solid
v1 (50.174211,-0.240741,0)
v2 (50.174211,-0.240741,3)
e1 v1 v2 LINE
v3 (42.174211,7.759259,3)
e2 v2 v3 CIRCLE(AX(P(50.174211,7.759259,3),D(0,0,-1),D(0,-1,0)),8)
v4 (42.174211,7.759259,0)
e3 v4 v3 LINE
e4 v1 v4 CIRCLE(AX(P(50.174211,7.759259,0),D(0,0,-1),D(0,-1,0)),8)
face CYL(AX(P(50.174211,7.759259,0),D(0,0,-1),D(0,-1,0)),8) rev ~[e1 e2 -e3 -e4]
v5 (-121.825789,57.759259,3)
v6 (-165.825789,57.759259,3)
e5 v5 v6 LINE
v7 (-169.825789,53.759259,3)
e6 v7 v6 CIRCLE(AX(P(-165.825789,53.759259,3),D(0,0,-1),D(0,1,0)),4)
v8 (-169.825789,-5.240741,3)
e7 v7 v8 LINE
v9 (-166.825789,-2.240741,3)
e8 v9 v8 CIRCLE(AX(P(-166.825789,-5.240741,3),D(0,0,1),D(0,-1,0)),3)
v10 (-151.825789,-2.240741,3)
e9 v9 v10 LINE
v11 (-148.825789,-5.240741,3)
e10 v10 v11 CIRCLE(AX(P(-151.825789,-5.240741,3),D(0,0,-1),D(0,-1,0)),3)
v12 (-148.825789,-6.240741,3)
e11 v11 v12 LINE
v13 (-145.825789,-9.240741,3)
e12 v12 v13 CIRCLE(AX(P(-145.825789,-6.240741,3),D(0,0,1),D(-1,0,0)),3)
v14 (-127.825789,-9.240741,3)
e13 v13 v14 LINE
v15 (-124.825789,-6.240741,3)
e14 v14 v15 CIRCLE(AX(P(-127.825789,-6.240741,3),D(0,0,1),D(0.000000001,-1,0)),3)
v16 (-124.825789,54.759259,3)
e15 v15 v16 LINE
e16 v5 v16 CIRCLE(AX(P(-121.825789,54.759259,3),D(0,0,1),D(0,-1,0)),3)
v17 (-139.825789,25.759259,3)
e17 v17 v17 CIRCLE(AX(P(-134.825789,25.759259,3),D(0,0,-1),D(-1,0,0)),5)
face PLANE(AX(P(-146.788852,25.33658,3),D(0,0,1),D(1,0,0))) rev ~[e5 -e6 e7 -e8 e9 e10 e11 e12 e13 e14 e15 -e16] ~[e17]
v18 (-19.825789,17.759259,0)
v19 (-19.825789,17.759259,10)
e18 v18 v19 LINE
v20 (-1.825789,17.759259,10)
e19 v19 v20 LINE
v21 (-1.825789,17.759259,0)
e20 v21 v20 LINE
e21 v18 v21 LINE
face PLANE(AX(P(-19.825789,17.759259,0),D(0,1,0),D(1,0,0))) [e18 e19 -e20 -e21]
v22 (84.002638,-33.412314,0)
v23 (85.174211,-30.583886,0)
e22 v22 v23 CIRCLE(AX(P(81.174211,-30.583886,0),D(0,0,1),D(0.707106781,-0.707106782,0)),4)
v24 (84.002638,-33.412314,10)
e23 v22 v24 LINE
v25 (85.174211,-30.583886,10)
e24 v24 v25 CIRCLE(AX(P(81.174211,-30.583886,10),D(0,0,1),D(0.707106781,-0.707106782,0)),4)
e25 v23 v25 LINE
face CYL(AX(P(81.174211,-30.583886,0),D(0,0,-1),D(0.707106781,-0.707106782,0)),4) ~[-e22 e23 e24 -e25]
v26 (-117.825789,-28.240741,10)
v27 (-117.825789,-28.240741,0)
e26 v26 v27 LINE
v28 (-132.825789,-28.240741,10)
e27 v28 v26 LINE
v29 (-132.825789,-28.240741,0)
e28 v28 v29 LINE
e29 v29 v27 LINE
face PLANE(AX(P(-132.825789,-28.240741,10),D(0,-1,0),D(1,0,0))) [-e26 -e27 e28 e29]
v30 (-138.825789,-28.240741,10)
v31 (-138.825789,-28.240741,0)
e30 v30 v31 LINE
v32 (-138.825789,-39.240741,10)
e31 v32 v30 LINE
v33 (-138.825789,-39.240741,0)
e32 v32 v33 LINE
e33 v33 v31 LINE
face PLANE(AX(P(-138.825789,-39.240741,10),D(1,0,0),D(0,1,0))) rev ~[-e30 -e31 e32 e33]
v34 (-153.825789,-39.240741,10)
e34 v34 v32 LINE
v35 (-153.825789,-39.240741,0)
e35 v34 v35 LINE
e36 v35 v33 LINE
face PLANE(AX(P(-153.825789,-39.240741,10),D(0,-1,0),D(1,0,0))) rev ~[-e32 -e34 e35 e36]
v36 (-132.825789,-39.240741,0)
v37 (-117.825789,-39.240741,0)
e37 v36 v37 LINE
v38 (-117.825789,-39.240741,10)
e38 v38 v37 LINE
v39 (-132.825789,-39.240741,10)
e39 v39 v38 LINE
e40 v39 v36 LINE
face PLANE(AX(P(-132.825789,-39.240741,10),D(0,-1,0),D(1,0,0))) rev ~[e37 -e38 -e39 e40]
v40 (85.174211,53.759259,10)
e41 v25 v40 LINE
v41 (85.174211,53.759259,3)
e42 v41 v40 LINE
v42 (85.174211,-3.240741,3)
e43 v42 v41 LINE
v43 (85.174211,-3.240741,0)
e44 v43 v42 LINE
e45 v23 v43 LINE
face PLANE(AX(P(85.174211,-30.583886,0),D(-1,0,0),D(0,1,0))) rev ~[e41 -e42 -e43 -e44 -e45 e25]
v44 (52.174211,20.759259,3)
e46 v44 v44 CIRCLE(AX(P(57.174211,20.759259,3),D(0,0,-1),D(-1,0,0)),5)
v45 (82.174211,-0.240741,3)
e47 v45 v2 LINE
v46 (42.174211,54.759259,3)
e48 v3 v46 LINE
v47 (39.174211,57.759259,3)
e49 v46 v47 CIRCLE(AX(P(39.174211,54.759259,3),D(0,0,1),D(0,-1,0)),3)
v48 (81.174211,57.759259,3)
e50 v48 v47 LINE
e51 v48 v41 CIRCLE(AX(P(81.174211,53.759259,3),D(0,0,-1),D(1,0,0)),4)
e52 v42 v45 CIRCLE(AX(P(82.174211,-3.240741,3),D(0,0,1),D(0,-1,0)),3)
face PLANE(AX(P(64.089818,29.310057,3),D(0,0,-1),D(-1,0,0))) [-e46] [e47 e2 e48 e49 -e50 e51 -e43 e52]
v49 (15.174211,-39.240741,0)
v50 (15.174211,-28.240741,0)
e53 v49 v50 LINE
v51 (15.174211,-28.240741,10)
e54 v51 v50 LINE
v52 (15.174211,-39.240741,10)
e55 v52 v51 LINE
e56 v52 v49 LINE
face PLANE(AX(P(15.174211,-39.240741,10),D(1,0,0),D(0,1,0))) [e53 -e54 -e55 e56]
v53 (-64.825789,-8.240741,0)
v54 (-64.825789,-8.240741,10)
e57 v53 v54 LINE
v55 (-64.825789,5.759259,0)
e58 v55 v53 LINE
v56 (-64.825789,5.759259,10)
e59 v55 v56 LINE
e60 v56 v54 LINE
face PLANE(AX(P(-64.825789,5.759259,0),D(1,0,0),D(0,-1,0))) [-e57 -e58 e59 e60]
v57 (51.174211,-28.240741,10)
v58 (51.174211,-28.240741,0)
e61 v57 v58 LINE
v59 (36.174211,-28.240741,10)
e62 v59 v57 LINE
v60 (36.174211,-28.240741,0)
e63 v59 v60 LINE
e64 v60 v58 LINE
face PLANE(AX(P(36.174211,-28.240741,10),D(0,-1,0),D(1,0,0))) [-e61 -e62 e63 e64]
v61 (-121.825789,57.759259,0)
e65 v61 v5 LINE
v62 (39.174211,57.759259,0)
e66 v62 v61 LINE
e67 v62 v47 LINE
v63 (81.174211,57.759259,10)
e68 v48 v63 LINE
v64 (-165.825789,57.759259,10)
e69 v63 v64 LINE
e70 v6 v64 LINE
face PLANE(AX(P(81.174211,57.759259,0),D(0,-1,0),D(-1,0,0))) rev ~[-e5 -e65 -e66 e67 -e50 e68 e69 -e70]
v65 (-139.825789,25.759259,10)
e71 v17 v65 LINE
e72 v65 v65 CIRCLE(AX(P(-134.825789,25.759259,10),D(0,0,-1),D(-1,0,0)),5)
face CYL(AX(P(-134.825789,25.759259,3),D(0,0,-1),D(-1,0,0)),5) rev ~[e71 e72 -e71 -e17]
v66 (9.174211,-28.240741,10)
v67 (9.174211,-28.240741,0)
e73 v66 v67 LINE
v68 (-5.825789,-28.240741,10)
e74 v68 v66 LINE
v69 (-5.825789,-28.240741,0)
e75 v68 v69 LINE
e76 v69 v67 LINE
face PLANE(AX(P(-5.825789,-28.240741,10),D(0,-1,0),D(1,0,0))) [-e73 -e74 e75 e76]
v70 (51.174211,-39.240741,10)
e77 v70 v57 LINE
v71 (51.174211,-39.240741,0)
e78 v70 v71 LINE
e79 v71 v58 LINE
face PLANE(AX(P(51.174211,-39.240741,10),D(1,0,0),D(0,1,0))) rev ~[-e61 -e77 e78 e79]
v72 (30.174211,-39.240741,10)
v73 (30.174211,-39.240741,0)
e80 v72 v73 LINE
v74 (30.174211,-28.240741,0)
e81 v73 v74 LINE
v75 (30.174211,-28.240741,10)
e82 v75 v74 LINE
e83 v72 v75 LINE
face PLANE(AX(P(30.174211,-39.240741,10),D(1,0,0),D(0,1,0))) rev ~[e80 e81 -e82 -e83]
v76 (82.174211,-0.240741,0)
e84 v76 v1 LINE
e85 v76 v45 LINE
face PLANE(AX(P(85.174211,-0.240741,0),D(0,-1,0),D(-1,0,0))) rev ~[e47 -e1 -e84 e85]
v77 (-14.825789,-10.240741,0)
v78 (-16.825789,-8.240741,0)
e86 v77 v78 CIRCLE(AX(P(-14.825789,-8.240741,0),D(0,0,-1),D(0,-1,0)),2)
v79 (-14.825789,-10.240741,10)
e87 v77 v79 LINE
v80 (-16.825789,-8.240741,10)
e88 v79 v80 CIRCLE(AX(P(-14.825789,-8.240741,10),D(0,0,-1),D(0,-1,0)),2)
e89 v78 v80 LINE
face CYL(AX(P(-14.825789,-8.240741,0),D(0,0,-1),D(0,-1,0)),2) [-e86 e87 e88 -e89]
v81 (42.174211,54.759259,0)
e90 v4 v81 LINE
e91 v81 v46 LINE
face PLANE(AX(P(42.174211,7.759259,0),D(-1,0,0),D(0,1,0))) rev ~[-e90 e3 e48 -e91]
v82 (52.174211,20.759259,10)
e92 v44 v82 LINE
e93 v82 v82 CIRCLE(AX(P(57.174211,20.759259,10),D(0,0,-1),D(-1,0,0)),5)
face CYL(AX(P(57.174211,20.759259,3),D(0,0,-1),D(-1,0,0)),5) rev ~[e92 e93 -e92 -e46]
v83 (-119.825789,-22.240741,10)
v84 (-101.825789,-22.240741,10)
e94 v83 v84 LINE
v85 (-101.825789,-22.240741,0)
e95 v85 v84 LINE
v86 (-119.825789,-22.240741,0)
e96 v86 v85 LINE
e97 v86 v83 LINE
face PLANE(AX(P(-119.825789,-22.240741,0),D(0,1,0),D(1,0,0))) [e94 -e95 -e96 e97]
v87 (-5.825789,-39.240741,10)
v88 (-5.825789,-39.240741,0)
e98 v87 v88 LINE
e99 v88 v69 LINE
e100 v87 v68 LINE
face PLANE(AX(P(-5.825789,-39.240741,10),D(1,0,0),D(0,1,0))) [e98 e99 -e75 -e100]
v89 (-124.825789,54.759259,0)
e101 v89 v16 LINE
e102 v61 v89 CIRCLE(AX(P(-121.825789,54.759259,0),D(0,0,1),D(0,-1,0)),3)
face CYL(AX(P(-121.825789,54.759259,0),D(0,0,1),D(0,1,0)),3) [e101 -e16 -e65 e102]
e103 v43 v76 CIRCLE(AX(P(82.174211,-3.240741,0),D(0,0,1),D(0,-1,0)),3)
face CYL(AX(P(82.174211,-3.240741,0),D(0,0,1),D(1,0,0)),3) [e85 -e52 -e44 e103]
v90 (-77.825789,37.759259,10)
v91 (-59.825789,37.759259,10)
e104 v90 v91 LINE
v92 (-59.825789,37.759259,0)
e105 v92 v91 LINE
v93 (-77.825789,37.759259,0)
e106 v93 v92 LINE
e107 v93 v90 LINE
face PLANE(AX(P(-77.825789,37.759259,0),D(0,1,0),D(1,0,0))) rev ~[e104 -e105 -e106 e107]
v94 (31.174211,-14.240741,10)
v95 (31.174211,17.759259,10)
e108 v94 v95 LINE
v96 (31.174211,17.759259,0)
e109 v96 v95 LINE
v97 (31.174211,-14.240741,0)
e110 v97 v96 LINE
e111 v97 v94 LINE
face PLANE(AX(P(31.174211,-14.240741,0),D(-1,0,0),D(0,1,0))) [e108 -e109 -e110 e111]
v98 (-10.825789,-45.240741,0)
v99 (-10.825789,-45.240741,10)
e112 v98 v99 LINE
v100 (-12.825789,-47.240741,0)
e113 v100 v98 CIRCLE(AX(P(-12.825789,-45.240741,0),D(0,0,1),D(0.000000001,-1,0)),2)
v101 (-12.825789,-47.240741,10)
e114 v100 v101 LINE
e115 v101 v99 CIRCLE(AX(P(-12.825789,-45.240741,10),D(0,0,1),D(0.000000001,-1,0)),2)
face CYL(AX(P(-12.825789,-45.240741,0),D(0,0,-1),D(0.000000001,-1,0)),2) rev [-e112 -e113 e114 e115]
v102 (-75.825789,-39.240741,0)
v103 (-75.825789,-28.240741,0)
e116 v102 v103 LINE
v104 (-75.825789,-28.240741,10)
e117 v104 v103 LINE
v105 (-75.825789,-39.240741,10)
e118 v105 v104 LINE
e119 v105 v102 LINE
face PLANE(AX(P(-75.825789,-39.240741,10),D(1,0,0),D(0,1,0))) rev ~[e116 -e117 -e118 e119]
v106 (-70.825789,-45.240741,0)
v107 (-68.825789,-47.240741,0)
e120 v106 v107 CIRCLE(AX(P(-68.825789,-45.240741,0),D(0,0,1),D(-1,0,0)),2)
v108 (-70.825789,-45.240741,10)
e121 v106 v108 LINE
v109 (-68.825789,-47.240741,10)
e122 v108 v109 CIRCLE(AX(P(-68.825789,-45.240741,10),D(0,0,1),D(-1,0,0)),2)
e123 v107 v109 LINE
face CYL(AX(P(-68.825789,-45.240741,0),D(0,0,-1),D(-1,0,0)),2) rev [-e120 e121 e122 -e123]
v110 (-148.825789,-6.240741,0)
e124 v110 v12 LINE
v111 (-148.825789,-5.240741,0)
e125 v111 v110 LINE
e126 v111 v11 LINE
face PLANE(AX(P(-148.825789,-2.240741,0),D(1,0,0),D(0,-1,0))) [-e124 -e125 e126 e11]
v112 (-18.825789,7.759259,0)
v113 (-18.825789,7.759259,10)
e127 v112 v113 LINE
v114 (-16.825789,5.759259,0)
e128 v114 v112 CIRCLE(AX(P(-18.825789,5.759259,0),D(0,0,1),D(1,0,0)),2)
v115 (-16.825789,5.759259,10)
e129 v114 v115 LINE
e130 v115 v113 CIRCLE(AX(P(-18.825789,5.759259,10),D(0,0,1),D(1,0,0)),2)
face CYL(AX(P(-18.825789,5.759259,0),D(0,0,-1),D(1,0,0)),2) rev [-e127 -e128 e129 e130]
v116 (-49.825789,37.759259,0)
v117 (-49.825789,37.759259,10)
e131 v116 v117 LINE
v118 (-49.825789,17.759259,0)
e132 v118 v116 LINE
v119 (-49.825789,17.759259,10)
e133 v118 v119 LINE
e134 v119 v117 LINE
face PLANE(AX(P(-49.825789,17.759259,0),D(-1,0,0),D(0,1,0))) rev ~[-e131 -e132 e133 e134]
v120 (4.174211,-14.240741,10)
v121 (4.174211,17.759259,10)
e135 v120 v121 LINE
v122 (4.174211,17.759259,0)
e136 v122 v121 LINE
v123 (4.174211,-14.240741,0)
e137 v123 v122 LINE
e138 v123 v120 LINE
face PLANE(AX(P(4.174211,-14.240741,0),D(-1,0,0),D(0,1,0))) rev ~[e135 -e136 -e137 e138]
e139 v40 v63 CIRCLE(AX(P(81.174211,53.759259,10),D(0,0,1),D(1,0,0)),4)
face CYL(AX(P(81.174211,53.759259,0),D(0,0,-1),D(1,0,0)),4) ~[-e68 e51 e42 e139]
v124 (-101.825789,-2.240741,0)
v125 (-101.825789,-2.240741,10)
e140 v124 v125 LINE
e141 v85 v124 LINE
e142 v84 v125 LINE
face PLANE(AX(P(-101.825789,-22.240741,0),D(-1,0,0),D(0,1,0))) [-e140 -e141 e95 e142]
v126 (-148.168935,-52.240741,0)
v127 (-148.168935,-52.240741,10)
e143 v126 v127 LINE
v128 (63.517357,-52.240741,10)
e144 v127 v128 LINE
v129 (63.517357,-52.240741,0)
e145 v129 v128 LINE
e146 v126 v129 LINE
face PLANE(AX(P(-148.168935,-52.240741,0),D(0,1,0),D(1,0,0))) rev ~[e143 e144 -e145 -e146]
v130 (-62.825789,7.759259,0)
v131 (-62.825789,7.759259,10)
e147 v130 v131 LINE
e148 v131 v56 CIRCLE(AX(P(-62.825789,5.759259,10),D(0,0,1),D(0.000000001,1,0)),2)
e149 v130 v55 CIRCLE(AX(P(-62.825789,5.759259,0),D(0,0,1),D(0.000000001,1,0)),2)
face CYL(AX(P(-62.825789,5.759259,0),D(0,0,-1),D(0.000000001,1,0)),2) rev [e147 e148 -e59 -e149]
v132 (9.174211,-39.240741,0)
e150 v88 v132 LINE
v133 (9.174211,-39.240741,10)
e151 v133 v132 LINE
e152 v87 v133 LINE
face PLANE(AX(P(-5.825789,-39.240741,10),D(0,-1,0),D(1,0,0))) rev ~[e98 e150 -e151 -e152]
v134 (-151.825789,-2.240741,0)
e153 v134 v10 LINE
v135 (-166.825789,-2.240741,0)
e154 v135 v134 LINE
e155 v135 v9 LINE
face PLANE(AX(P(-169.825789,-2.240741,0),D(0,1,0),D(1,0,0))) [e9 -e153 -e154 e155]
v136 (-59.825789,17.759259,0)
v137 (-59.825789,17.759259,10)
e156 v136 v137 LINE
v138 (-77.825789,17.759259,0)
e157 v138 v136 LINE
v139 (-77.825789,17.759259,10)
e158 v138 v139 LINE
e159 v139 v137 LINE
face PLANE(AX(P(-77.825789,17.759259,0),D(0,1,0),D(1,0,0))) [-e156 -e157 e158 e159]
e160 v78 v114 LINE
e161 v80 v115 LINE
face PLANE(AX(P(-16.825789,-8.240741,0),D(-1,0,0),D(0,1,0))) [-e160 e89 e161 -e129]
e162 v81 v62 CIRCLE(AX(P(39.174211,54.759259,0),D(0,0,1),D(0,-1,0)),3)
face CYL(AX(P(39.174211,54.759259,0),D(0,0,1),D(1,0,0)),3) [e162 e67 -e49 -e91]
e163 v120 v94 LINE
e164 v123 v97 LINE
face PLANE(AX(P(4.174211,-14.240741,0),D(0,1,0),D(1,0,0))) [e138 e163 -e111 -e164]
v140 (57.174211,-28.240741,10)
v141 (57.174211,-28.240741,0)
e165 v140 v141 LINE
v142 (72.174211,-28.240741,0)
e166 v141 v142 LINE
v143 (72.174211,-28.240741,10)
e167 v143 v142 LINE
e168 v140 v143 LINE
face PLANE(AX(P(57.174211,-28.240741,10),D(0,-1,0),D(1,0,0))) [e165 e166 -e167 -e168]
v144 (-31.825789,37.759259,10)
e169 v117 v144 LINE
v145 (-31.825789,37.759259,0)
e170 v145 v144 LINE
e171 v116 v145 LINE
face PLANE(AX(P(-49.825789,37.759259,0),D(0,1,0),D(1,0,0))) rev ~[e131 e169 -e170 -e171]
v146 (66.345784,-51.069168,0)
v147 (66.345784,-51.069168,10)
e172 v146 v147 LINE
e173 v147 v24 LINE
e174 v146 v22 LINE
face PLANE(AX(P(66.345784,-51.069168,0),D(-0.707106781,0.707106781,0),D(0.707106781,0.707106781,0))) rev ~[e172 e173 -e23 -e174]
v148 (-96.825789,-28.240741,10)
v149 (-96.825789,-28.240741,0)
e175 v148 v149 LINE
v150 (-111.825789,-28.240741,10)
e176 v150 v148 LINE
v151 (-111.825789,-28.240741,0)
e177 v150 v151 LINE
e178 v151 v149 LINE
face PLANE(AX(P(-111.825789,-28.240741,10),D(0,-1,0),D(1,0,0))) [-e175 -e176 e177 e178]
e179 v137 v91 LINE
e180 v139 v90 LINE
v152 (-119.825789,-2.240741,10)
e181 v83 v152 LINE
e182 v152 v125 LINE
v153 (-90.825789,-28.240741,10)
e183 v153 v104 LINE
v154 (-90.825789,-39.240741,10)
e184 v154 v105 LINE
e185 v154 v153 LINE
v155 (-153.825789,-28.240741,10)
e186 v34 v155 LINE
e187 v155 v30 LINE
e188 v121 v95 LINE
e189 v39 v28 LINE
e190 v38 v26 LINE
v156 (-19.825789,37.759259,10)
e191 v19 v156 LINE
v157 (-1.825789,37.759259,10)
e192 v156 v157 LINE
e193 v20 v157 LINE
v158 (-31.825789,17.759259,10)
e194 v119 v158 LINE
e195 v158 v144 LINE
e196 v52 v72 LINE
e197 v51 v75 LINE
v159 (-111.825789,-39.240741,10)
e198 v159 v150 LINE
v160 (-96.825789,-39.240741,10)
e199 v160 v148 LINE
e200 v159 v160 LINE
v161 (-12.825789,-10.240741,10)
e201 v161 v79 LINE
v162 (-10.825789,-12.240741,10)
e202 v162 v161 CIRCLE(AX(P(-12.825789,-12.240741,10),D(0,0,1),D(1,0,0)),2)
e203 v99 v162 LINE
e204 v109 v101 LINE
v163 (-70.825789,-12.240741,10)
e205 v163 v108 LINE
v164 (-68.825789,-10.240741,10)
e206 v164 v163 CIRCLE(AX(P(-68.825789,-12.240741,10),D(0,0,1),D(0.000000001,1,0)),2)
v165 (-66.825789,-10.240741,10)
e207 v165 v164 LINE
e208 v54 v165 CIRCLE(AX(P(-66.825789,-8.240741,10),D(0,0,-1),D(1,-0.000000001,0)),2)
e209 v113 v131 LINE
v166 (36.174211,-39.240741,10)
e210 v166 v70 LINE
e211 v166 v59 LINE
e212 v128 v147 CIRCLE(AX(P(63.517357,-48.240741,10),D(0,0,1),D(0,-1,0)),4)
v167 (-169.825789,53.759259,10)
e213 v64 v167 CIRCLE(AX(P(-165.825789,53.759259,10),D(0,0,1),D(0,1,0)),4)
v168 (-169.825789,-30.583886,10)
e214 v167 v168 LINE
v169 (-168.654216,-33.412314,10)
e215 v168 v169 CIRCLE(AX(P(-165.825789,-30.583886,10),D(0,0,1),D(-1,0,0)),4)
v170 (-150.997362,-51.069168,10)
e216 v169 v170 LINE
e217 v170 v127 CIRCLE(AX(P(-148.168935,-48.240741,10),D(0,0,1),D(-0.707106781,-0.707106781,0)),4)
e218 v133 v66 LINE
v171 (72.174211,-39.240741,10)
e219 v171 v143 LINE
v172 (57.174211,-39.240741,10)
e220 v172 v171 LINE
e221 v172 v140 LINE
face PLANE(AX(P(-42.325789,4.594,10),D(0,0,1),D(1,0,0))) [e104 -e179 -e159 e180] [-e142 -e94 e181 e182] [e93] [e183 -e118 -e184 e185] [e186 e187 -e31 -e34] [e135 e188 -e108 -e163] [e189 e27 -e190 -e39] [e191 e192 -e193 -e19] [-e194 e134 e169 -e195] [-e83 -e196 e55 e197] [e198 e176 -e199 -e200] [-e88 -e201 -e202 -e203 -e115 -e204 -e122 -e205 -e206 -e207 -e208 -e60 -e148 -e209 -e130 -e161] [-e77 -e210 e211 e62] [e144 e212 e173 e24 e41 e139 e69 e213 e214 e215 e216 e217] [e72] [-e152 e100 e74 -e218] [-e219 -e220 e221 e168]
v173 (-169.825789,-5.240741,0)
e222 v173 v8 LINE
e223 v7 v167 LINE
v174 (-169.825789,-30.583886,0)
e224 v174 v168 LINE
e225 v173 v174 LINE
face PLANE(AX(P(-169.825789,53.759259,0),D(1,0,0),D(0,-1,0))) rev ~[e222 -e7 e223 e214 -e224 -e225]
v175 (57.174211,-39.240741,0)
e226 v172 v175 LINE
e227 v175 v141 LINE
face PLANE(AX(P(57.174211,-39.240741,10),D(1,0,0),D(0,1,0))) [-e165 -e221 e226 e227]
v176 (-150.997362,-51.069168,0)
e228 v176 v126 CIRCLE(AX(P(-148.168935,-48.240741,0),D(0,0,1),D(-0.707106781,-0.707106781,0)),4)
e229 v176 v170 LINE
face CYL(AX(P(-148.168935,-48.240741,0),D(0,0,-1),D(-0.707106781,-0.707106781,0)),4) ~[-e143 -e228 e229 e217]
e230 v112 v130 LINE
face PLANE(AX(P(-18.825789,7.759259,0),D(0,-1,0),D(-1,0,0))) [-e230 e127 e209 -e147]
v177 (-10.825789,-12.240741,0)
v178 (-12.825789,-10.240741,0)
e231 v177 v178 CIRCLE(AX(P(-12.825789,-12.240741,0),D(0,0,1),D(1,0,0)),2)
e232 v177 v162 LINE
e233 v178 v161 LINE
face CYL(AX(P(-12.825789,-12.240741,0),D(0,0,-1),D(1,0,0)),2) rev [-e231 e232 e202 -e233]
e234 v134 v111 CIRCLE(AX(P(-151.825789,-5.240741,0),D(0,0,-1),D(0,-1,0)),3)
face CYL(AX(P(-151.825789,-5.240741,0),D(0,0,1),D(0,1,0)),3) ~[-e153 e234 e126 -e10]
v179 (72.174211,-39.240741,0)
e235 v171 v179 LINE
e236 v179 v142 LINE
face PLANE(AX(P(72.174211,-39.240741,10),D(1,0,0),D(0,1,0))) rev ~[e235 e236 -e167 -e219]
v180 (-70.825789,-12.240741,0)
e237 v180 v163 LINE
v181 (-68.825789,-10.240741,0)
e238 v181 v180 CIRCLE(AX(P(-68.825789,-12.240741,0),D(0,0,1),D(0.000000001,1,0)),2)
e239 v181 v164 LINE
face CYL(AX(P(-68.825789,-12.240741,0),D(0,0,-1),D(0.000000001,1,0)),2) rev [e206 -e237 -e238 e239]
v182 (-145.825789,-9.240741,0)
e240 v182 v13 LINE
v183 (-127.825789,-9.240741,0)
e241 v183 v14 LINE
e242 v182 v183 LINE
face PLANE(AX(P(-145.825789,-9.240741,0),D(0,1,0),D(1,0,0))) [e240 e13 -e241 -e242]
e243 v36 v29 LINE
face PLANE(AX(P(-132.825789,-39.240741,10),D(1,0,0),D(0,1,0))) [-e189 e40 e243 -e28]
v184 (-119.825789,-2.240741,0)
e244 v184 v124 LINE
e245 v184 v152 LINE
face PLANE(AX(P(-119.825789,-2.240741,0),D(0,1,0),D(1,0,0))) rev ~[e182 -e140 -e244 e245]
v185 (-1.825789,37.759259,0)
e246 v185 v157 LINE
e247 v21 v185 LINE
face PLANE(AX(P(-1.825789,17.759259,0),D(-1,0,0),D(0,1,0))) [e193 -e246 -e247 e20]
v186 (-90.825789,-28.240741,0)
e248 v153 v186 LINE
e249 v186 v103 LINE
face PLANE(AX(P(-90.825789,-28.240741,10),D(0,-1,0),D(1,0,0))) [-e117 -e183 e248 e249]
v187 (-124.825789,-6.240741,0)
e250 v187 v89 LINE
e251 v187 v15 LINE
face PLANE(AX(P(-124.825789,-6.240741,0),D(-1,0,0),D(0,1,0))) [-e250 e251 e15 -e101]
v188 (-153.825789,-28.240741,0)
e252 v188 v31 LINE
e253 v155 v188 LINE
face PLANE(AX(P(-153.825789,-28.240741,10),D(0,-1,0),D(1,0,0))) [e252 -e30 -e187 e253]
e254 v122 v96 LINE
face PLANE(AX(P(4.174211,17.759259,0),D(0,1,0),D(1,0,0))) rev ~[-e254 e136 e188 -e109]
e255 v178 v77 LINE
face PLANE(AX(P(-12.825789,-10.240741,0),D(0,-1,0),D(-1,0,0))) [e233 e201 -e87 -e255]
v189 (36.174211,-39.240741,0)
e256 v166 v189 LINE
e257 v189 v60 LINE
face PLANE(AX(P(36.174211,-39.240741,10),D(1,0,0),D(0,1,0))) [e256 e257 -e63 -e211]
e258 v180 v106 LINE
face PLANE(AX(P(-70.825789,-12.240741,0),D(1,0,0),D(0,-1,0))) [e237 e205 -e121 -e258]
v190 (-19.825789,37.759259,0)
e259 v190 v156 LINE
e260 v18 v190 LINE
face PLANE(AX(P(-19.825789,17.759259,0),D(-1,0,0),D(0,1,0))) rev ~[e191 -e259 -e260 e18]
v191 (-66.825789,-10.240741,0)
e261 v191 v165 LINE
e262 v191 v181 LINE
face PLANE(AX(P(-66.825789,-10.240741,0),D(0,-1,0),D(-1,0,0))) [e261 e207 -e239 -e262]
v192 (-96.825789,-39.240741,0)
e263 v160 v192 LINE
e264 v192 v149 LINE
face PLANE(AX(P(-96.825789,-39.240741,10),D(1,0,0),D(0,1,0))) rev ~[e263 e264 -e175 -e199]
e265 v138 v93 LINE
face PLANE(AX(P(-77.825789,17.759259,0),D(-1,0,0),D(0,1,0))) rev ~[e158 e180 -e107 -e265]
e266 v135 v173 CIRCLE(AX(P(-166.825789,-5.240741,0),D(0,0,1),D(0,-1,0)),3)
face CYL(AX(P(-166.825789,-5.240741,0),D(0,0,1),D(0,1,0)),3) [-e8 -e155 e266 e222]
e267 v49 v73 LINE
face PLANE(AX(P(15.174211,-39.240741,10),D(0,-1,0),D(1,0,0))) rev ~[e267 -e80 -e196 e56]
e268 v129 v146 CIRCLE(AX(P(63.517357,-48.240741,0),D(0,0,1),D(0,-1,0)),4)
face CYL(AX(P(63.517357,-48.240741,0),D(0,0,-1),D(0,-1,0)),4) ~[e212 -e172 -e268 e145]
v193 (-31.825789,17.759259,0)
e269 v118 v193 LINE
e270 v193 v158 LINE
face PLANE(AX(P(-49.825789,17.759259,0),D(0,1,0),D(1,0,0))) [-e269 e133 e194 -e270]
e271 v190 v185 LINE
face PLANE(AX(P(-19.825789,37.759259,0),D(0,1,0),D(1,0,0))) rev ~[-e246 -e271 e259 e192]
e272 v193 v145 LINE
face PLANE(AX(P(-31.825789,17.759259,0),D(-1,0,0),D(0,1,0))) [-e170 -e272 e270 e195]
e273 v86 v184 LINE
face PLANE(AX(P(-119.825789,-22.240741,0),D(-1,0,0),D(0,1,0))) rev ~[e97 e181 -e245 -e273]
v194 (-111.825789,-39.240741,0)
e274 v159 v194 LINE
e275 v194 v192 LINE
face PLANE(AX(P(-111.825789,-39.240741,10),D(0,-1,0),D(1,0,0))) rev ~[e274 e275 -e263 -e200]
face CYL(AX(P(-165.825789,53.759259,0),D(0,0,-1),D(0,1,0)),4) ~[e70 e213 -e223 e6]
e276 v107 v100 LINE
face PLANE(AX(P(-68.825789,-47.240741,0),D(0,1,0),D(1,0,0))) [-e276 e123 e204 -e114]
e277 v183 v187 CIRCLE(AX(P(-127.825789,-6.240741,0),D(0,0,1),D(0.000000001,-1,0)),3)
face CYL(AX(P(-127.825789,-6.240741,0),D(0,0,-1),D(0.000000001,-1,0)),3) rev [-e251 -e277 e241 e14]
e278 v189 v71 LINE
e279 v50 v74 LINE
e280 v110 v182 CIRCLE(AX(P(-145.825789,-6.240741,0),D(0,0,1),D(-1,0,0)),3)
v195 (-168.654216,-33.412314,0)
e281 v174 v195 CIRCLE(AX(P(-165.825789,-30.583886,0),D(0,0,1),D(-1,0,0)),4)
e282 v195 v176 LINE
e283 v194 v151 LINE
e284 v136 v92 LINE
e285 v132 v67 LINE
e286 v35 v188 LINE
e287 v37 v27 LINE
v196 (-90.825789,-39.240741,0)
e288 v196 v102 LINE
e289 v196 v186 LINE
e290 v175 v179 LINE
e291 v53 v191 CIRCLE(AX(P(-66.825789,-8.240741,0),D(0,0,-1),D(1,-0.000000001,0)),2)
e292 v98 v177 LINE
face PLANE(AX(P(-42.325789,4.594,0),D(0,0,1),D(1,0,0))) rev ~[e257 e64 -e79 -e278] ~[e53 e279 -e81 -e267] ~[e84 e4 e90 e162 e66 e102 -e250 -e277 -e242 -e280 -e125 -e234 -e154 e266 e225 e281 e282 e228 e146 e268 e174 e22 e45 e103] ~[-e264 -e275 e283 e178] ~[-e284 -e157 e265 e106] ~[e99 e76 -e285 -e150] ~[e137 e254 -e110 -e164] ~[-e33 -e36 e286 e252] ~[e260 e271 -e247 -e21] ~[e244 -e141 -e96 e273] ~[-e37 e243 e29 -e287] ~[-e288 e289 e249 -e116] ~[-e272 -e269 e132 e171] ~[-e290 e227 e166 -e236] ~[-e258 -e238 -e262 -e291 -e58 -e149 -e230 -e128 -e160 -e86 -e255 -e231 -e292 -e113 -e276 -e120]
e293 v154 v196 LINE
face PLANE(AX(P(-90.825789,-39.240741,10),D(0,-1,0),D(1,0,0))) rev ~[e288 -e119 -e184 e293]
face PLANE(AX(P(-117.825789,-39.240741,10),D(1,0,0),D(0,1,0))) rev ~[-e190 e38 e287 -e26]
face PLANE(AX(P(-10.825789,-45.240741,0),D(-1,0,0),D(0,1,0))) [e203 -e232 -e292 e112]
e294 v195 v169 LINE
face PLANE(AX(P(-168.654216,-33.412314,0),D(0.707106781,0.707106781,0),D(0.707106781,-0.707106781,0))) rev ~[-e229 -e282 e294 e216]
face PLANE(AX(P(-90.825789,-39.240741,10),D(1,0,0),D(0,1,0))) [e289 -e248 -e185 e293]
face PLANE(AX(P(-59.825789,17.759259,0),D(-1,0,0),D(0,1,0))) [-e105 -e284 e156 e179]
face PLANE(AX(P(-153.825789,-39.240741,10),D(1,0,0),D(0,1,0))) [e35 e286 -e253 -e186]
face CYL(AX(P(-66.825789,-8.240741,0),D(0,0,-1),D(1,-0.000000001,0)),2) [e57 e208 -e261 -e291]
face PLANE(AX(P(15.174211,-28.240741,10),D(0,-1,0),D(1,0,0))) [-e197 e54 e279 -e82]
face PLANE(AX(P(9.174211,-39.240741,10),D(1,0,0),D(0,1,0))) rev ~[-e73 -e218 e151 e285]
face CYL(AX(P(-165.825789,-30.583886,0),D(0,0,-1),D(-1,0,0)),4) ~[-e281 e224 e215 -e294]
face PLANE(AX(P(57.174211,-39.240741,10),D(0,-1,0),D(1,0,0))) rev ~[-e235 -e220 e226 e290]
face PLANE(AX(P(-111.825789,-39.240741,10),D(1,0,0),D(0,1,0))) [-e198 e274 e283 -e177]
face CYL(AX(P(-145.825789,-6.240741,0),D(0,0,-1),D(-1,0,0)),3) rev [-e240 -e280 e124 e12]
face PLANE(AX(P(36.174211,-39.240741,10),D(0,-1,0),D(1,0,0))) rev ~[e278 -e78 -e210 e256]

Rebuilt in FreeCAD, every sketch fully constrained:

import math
import FreeCAD as App
import Part
import Sketcher


def edges_at(feature, points):
    """Names of the edges that pass closest to the given points."""
    edges = feature.Shape.Edges
    near = lambda p: min(range(len(edges)), key=lambda i: edges[i].distToShape(Part.Vertex(*p))[0])
    return sorted({f"Edge{near(p) + 1}" for p in points})


def add_polygon(sketch, points):
    """Adds a closed chain of lines whose ends are joined by coincident constraints."""
    first, n = sketch.GeometryCount, len(points)
    for a, b in zip(points, points[1:] + points[:1]):
        sketch.addGeometry(Part.LineSegment(App.Vector(*a, 0), App.Vector(*b, 0)), False)
    for i in range(n):
        sketch.addConstraint(Sketcher.Constraint("Coincident", first + i, 2, first + (i + 1) % n, 1))

doc = App.newDocument("Part")
body = doc.addObject("PartDesign::Body", "Body")

# Sketch on XY plane
sketch1 = body.newObject("Sketcher::SketchObject", "Sketch")
sketch1.AttachmentSupport = (doc.getObject("XY_Plane"), [""])
sketch1.MapMode = "FlatFace"
sketch1.addGeometry(Part.LineSegment(App.Vector(-168.7, -33.4, 0), App.Vector(-151, -51.1, 0)), False)  # 0
sketch1.addGeometry(Part.ArcOfCircle(Part.Circle(App.Vector(-148.2, -48.2, 0), App.Vector(0, 0, 1), 4), math.radians(-135), math.radians(-90)), False)  # 1
sketch1.addGeometry(Part.LineSegment(App.Vector(-148.2, -52.2, 0), App.Vector(63.5, -52.2, 0)), False)  # 2
sketch1.addGeometry(Part.ArcOfCircle(Part.Circle(App.Vector(63.5, -48.2, 0), App.Vector(0, 0, 1), 4), math.radians(-90), math.radians(-45)), False)  # 3
sketch1.addGeometry(Part.LineSegment(App.Vector(66.3, -51.1, 0), App.Vector(84, -33.4, 0)), False)  # 4
sketch1.addGeometry(Part.ArcOfCircle(Part.Circle(App.Vector(81.2, -30.6, 0), App.Vector(0, 0, 1), 4), math.radians(-45), math.radians(0)), False)  # 5
sketch1.addGeometry(Part.LineSegment(App.Vector(85.2, -30.6, 0), App.Vector(85.2, 53.8, 0)), False)  # 6
sketch1.addGeometry(Part.ArcOfCircle(Part.Circle(App.Vector(81.2, 53.8, 0), App.Vector(0, 0, 1), 4), math.radians(0), math.radians(90)), False)  # 7
sketch1.addGeometry(Part.LineSegment(App.Vector(81.2, 57.8, 0), App.Vector(-165.8, 57.8, 0)), False)  # 8
sketch1.addGeometry(Part.ArcOfCircle(Part.Circle(App.Vector(-165.8, 53.8, 0), App.Vector(0, 0, 1), 4), math.radians(90), math.radians(180)), False)  # 9
sketch1.addGeometry(Part.LineSegment(App.Vector(-169.8, 53.8, 0), App.Vector(-169.8, -30.6, 0)), False)  # 10
sketch1.addGeometry(Part.ArcOfCircle(Part.Circle(App.Vector(-165.8, -30.6, 0), App.Vector(0, 0, 1), 4), math.radians(180), math.radians(225)), False)  # 11
add_polygon(sketch1, [(-101.8, -22.2), (-119.8, -22.2), (-119.8, -2.2), (-101.8, -2.2)])  # lines 12-15
add_polygon(sketch1, [(31.2, -14.2), (4.2, -14.2), (4.2, 17.8), (31.2, 17.8)])  # lines 16-19
add_polygon(sketch1, [(-59.8, 17.8), (-77.8, 17.8), (-77.8, 37.8), (-59.8, 37.8)])  # lines 20-23
add_polygon(sketch1, [(-31.8, 17.8), (-49.8, 17.8), (-49.8, 37.8), (-31.8, 37.8)])  # lines 24-27
add_polygon(sketch1, [(-1.8, 17.8), (-19.8, 17.8), (-19.8, 37.8), (-1.8, 37.8)])  # lines 28-31
sketch1.addConstraint(Sketcher.Constraint("Tangent", 0, 2, 1, 1))
sketch1.addConstraint(Sketcher.Constraint("Tangent", 1, 2, 2, 1))
sketch1.addConstraint(Sketcher.Constraint("Tangent", 2, 2, 3, 1))
sketch1.addConstraint(Sketcher.Constraint("Tangent", 3, 2, 4, 1))
sketch1.addConstraint(Sketcher.Constraint("Tangent", 4, 2, 5, 1))
sketch1.addConstraint(Sketcher.Constraint("Tangent", 5, 2, 6, 1))
sketch1.addConstraint(Sketcher.Constraint("Tangent", 6, 2, 7, 1))
sketch1.addConstraint(Sketcher.Constraint("Tangent", 7, 2, 8, 1))
sketch1.addConstraint(Sketcher.Constraint("Tangent", 8, 2, 9, 1))
sketch1.addConstraint(Sketcher.Constraint("Tangent", 9, 2, 10, 1))
sketch1.addConstraint(Sketcher.Constraint("Tangent", 10, 2, 11, 1))
sketch1.addConstraint(Sketcher.Constraint("Tangent", 11, 2, 0, 1))
sketch1.addConstraint(Sketcher.Constraint("Horizontal", 2))
sketch1.addConstraint(Sketcher.Constraint("Vertical", 6))
sketch1.addConstraint(Sketcher.Constraint("Horizontal", 8))
sketch1.addConstraint(Sketcher.Constraint("Vertical", 10))
sketch1.addConstraint(Sketcher.Constraint("Horizontal", 12))
sketch1.addConstraint(Sketcher.Constraint("Vertical", 13))
sketch1.addConstraint(Sketcher.Constraint("Horizontal", 14))
sketch1.addConstraint(Sketcher.Constraint("Vertical", 15))
sketch1.addConstraint(Sketcher.Constraint("Horizontal", 16))
sketch1.addConstraint(Sketcher.Constraint("Vertical", 17))
sketch1.addConstraint(Sketcher.Constraint("Horizontal", 18))
sketch1.addConstraint(Sketcher.Constraint("Vertical", 19))
sketch1.addConstraint(Sketcher.Constraint("Horizontal", 20))
sketch1.addConstraint(Sketcher.Constraint("Vertical", 21))
sketch1.addConstraint(Sketcher.Constraint("Horizontal", 22))
sketch1.addConstraint(Sketcher.Constraint("Vertical", 23))
sketch1.addConstraint(Sketcher.Constraint("Horizontal", 24))
sketch1.addConstraint(Sketcher.Constraint("Vertical", 25))
sketch1.addConstraint(Sketcher.Constraint("Horizontal", 26))
sketch1.addConstraint(Sketcher.Constraint("Vertical", 27))
sketch1.addConstraint(Sketcher.Constraint("Horizontal", 28))
sketch1.addConstraint(Sketcher.Constraint("Vertical", 29))
sketch1.addConstraint(Sketcher.Constraint("Horizontal", 30))
sketch1.addConstraint(Sketcher.Constraint("Vertical", 31))
sketch1.addConstraint(Sketcher.Constraint("Equal", 1, 3))
sketch1.addConstraint(Sketcher.Constraint("Equal", 3, 5))
sketch1.addConstraint(Sketcher.Constraint("Equal", 5, 7))
sketch1.addConstraint(Sketcher.Constraint("Equal", 7, 9))
sketch1.addConstraint(Sketcher.Constraint("Equal", 9, 11))
sketch1.addConstraint(Sketcher.Constraint("Perpendicular", 0, 4))
sketch1.addConstraint(Sketcher.Constraint("Horizontal", 5, 3, 11, 3))
sketch1.addConstraint(Sketcher.Constraint("Horizontal", 0, 2, 3, 2))
sketch1.addConstraint(Sketcher.Constraint("Horizontal", 18, 2, 20, 2))
sketch1.addConstraint(Sketcher.Constraint("Horizontal", 23, 2, 24, 2))
sketch1.addConstraint(Sketcher.Constraint("Horizontal", 22, 2, 25, 2))
sketch1.addConstraint(Sketcher.Constraint("Horizontal", 27, 2, 28, 2))
sketch1.addConstraint(Sketcher.Constraint("Horizontal", 26, 2, 29, 2))
sketch1.addConstraint(Sketcher.Constraint("Equal", 14, 20))
sketch1.addConstraint(Sketcher.Constraint("Equal", 22, 24))
sketch1.addConstraint(Sketcher.Constraint("Equal", 26, 28))
sketch1.addConstraint(Sketcher.Constraint("Equal", 15, 21))
sketch1.addConstraint(Sketcher.Constraint("Radius", 1, 4.0))
sketch1.addConstraint(Sketcher.Constraint("DistanceX", 8, 2, 8, 1, 247.0))
sketch1.addConstraint(Sketcher.Constraint("DistanceX", 12, 2, 12, 1, 18.0))
sketch1.addConstraint(Sketcher.Constraint("DistanceX", 16, 2, 16, 1, 27.0))
sketch1.addConstraint(Sketcher.Constraint("DistanceY", 13, 1, 13, 2, 20.0))
sketch1.addConstraint(Sketcher.Constraint("DistanceY", 17, 1, 17, 2, 32.0))
sketch1.addConstraint(Sketcher.Constraint("DistanceY", 3, 3, 7, 3, 102.0))
sketch1.addConstraint(Sketcher.Constraint("DistanceY", 1, 3, 12, 2, 26.0))
sketch1.addConstraint(Sketcher.Constraint("DistanceX", 11, 3, 12, 2, 46.0))
sketch1.addConstraint(Sketcher.Constraint("DistanceY", 3, 3, 16, 2, 34.0))
sketch1.addConstraint(Sketcher.Constraint("DistanceX", 16, 2, 5, 3, 77.0))
sketch1.addConstraint(Sketcher.Constraint("DistanceX", 14, 2, 20, 2, 24.0))
sketch1.addConstraint(Sketcher.Constraint("DistanceX", 23, 2, 24, 2, 10.0))
sketch1.addConstraint(Sketcher.Constraint("DistanceX", 27, 2, 28, 2, 12.0))
sketch1.addConstraint(Sketcher.Constraint("DistanceX", 2, 1, 2, 2, 211.686292))
sketch1.addConstraint(Sketcher.Constraint("DistanceY", 1, 3, -1, 1, 48.240741))
sketch1.addConstraint(Sketcher.Constraint("DistanceX", -1, 1, 5, 3, 81.174211))
pad1 = body.newObject("PartDesign::Pad", "Pad")
pad1.Profile = sketch1
pad1.Length = 10

# Sketch on XY plane
sketch2 = body.newObject("Sketcher::SketchObject", "Sketch001")
sketch2.AttachmentSupport = (doc.getObject("XY_Plane"), [""])
sketch2.MapMode = "FlatFace"
sketch2.AttachmentOffset = App.Placement(App.Vector(0, 0, 10), App.Rotation())
add_polygon(sketch2, [(-154, -28), (-154, -39), (-139, -39), (-139, -28)])  # lines 0-3
add_polygon(sketch2, [(-133, -28), (-133, -39), (-118, -39), (-118, -28)])  # lines 4-7
add_polygon(sketch2, [(-112, -28), (-112, -39), (-97, -39), (-97, -28)])  # lines 8-11
add_polygon(sketch2, [(-91, -28), (-91, -39), (-76, -39), (-76, -28)])  # lines 12-15
add_polygon(sketch2, [(-6, -28), (-6, -39), (9, -39), (9, -28)])  # lines 16-19
add_polygon(sketch2, [(15, -28), (15, -39), (30, -39), (30, -28)])  # lines 20-23
add_polygon(sketch2, [(36, -28), (36, -39), (51, -39), (51, -28)])  # lines 24-27
add_polygon(sketch2, [(57, -28), (57, -39), (72, -39), (72, -28)])  # lines 28-31
sketch2.addConstraint(Sketcher.Constraint("Vertical", 0))
sketch2.addConstraint(Sketcher.Constraint("Horizontal", 1))
sketch2.addConstraint(Sketcher.Constraint("Vertical", 2))
sketch2.addConstraint(Sketcher.Constraint("Horizontal", 3))
sketch2.addConstraint(Sketcher.Constraint("Vertical", 4))
sketch2.addConstraint(Sketcher.Constraint("Horizontal", 5))
sketch2.addConstraint(Sketcher.Constraint("Vertical", 6))
sketch2.addConstraint(Sketcher.Constraint("Horizontal", 7))
sketch2.addConstraint(Sketcher.Constraint("Vertical", 8))
sketch2.addConstraint(Sketcher.Constraint("Horizontal", 9))
sketch2.addConstraint(Sketcher.Constraint("Vertical", 10))
sketch2.addConstraint(Sketcher.Constraint("Horizontal", 11))
sketch2.addConstraint(Sketcher.Constraint("Vertical", 12))
sketch2.addConstraint(Sketcher.Constraint("Horizontal", 13))
sketch2.addConstraint(Sketcher.Constraint("Vertical", 14))
sketch2.addConstraint(Sketcher.Constraint("Horizontal", 15))
sketch2.addConstraint(Sketcher.Constraint("Vertical", 16))
sketch2.addConstraint(Sketcher.Constraint("Horizontal", 17))
sketch2.addConstraint(Sketcher.Constraint("Vertical", 18))
sketch2.addConstraint(Sketcher.Constraint("Horizontal", 19))
sketch2.addConstraint(Sketcher.Constraint("Vertical", 20))
sketch2.addConstraint(Sketcher.Constraint("Horizontal", 21))
sketch2.addConstraint(Sketcher.Constraint("Vertical", 22))
sketch2.addConstraint(Sketcher.Constraint("Horizontal", 23))
sketch2.addConstraint(Sketcher.Constraint("Vertical", 24))
sketch2.addConstraint(Sketcher.Constraint("Horizontal", 25))
sketch2.addConstraint(Sketcher.Constraint("Vertical", 26))
sketch2.addConstraint(Sketcher.Constraint("Horizontal", 27))
sketch2.addConstraint(Sketcher.Constraint("Vertical", 28))
sketch2.addConstraint(Sketcher.Constraint("Horizontal", 29))
sketch2.addConstraint(Sketcher.Constraint("Vertical", 30))
sketch2.addConstraint(Sketcher.Constraint("Horizontal", 31))
sketch2.addConstraint(Sketcher.Constraint("Horizontal", 1, 2, 4, 2))
sketch2.addConstraint(Sketcher.Constraint("Horizontal", 3, 2, 6, 2))
sketch2.addConstraint(Sketcher.Constraint("Horizontal", 5, 2, 8, 2))
sketch2.addConstraint(Sketcher.Constraint("Horizontal", 7, 2, 10, 2))
sketch2.addConstraint(Sketcher.Constraint("Horizontal", 9, 2, 12, 2))
sketch2.addConstraint(Sketcher.Constraint("Horizontal", 11, 2, 14, 2))
sketch2.addConstraint(Sketcher.Constraint("Horizontal", 13, 2, 16, 2))
sketch2.addConstraint(Sketcher.Constraint("Horizontal", 15, 2, 18, 2))
sketch2.addConstraint(Sketcher.Constraint("Horizontal", 17, 2, 20, 2))
sketch2.addConstraint(Sketcher.Constraint("Horizontal", 19, 2, 22, 2))
sketch2.addConstraint(Sketcher.Constraint("Horizontal", 21, 2, 24, 2))
sketch2.addConstraint(Sketcher.Constraint("Horizontal", 23, 2, 26, 2))
sketch2.addConstraint(Sketcher.Constraint("Horizontal", 25, 2, 28, 2))
sketch2.addConstraint(Sketcher.Constraint("Horizontal", 27, 2, 30, 2))
sketch2.addConstraint(Sketcher.Constraint("Equal", 3, 5))
sketch2.addConstraint(Sketcher.Constraint("Equal", 7, 9))
sketch2.addConstraint(Sketcher.Constraint("Equal", 11, 13))
sketch2.addConstraint(Sketcher.Constraint("Equal", 15, 17))
sketch2.addConstraint(Sketcher.Constraint("Equal", 19, 21))
sketch2.addConstraint(Sketcher.Constraint("Equal", 23, 25))
sketch2.addConstraint(Sketcher.Constraint("Equal", 27, 29))
sketch2.addConstraint(Sketcher.Constraint("DistanceX", 1, 1, 1, 2, 15.0))
sketch2.addConstraint(Sketcher.Constraint("DistanceY", 0, 2, 0, 1, 11.0))
sketch2.addConstraint(Sketcher.Constraint("DistanceX", 1, 2, 4, 2, 6.0))
sketch2.addConstraint(Sketcher.Constraint("DistanceX", 5, 2, 8, 2, 6.0))
sketch2.addConstraint(Sketcher.Constraint("DistanceX", 9, 2, 12, 2, 6.0))
sketch2.addConstraint(Sketcher.Constraint("DistanceX", 13, 2, 16, 2, 70.0))
sketch2.addConstraint(Sketcher.Constraint("DistanceX", 17, 2, 20, 2, 6.0))
sketch2.addConstraint(Sketcher.Constraint("DistanceX", 21, 2, 24, 2, 6.0))
sketch2.addConstraint(Sketcher.Constraint("DistanceX", 25, 2, 28, 2, 6.0))
sketch2.addConstraint(Sketcher.Constraint("DistanceX", 0, 2, -1, 1, 153.825789))
sketch2.addConstraint(Sketcher.Constraint("DistanceY", 0, 2, -1, 1, 39.240741))
pocket1 = body.newObject("PartDesign::Pocket", "Pocket")
pocket1.Profile = sketch2
pocket1.Length = 10

# Sketch on XY plane
sketch3 = body.newObject("Sketcher::SketchObject", "Sketch002")
sketch3.AttachmentSupport = (doc.getObject("XY_Plane"), [""])
sketch3.MapMode = "FlatFace"
sketch3.addGeometry(Part.LineSegment(App.Vector(42.2, 57.8, 0), App.Vector(85.2, 57.8, 0)), False)
sketch3.addGeometry(Part.LineSegment(App.Vector(85.2, 57.8, 0), App.Vector(85.2, -0.2, 0)), False)
sketch3.addGeometry(Part.LineSegment(App.Vector(85.2, -0.2, 0), App.Vector(50.2, -0.2, 0)), False)
sketch3.addGeometry(Part.ArcOfCircle(Part.Circle(App.Vector(50.2, 7.8, 0), App.Vector(0, 0, 1), 8), math.radians(180), math.radians(270)), False)
sketch3.addGeometry(Part.LineSegment(App.Vector(42.2, 7.8, 0), App.Vector(42.2, 57.8, 0)), False)
sketch3.addGeometry(Part.LineSegment(App.Vector(-169.8, 57.8, 0), App.Vector(-124.8, 57.8, 0)), False)
sketch3.addGeometry(Part.LineSegment(App.Vector(-124.8, 57.8, 0), App.Vector(-124.8, -6.2, 0)), False)
sketch3.addGeometry(Part.ArcOfCircle(Part.Circle(App.Vector(-127.8, -6.2, 0), App.Vector(0, 0, 1), 3), math.radians(-90), math.radians(0)), False)
sketch3.addGeometry(Part.LineSegment(App.Vector(-127.8, -9.2, 0), App.Vector(-145.8, -9.2, 0)), False)
sketch3.addGeometry(Part.ArcOfCircle(Part.Circle(App.Vector(-145.8, -6.2, 0), App.Vector(0, 0, 1), 3), math.radians(180), math.radians(270)), False)
sketch3.addGeometry(Part.LineSegment(App.Vector(-148.8, -6.2, 0), App.Vector(-148.8, -2.2, 0)), False)
sketch3.addGeometry(Part.LineSegment(App.Vector(-148.8, -2.2, 0), App.Vector(-169.8, -2.2, 0)), False)
sketch3.addGeometry(Part.LineSegment(App.Vector(-169.8, -2.2, 0), App.Vector(-169.8, 57.8, 0)), False)
sketch3.addConstraint(Sketcher.Constraint("Coincident", 0, 2, 1, 1))
sketch3.addConstraint(Sketcher.Constraint("Coincident", 1, 2, 2, 1))
sketch3.addConstraint(Sketcher.Constraint("Tangent", 2, 2, 3, 2))
sketch3.addConstraint(Sketcher.Constraint("Tangent", 3, 1, 4, 1))
sketch3.addConstraint(Sketcher.Constraint("Coincident", 4, 2, 0, 1))
sketch3.addConstraint(Sketcher.Constraint("Coincident", 5, 2, 6, 1))
sketch3.addConstraint(Sketcher.Constraint("Tangent", 6, 2, 7, 2))
sketch3.addConstraint(Sketcher.Constraint("Tangent", 7, 1, 8, 1))
sketch3.addConstraint(Sketcher.Constraint("Tangent", 8, 2, 9, 2))
sketch3.addConstraint(Sketcher.Constraint("Tangent", 9, 1, 10, 1))
sketch3.addConstraint(Sketcher.Constraint("Coincident", 10, 2, 11, 1))
sketch3.addConstraint(Sketcher.Constraint("Coincident", 11, 2, 12, 1))
sketch3.addConstraint(Sketcher.Constraint("Coincident", 12, 2, 5, 1))
sketch3.addConstraint(Sketcher.Constraint("Horizontal", 0))
sketch3.addConstraint(Sketcher.Constraint("Vertical", 1))
sketch3.addConstraint(Sketcher.Constraint("Horizontal", 2))
sketch3.addConstraint(Sketcher.Constraint("Vertical", 4))
sketch3.addConstraint(Sketcher.Constraint("Horizontal", 5))
sketch3.addConstraint(Sketcher.Constraint("Vertical", 6))
sketch3.addConstraint(Sketcher.Constraint("Horizontal", 8))
sketch3.addConstraint(Sketcher.Constraint("Vertical", 10))
sketch3.addConstraint(Sketcher.Constraint("Horizontal", 11))
sketch3.addConstraint(Sketcher.Constraint("Vertical", 12))
sketch3.addConstraint(Sketcher.Constraint("Equal", 7, 9))
sketch3.addConstraint(Sketcher.Constraint("Horizontal", 4, 2, 5, 2))
sketch3.addConstraint(Sketcher.Constraint("Radius", 3, 8.0))
sketch3.addConstraint(Sketcher.Constraint("Radius", 7, 3.0))
sketch3.addConstraint(Sketcher.Constraint("DistanceX", 0, 1, 0, 2, 43.0))
sketch3.addConstraint(Sketcher.Constraint("DistanceX", 5, 1, 5, 2, 45.0))
sketch3.addConstraint(Sketcher.Constraint("DistanceX", 8, 2, 8, 1, 18.0))
sketch3.addConstraint(Sketcher.Constraint("DistanceY", 1, 2, 1, 1, 58.0))
sketch3.addConstraint(Sketcher.Constraint("DistanceY", 6, 2, 6, 1, 64.0))
sketch3.addConstraint(Sketcher.Constraint("DistanceY", 10, 1, 10, 2, 4.0))
sketch3.addConstraint(Sketcher.Constraint("DistanceX", 7, 3, 3, 3, 178.0))
sketch3.addConstraint(Sketcher.Constraint("DistanceX", -1, 1, 3, 3, 50.174211))
sketch3.addConstraint(Sketcher.Constraint("DistanceY", -1, 1, 3, 3, 7.759259))
pocket2 = body.newObject("PartDesign::Pocket", "Pocket001")
pocket2.Profile = sketch3
pocket2.Length = 3
pocket2.Reversed = True
doc.recompute()

fillet = body.newObject("PartDesign::Fillet", "Fillet")
fillet.Base = (pocket2, edges_at(pocket2, [(-148.826, -2.241, 1.5)]))
fillet.Radius = 3
doc.recompute()

fillet2 = body.newObject("PartDesign::Fillet", "Fillet001")
fillet2.Base = (fillet, edges_at(fillet, [(-169.826, -2.241, 1.5)]))
fillet2.Radius = 3
doc.recompute()

fillet3 = body.newObject("PartDesign::Fillet", "Fillet002")
fillet3.Base = (fillet2, edges_at(fillet2, [(-124.826, 57.759, 1.5)]))
fillet3.Radius = 3
doc.recompute()

fillet4 = body.newObject("PartDesign::Fillet", "Fillet003")
fillet4.Base = (fillet3, edges_at(fillet3, [(42.174, 57.759, 1.5)]))
fillet4.Radius = 3
doc.recompute()

fillet5 = body.newObject("PartDesign::Fillet", "Fillet004")
fillet5.Base = (fillet4, edges_at(fillet4, [(85.174, -0.241, 1.5)]))
fillet5.Radius = 3

# Sketch on XY plane
sketch4 = body.newObject("Sketcher::SketchObject", "Sketch003")
sketch4.AttachmentSupport = (doc.getObject("XY_Plane"), [""])
sketch4.MapMode = "FlatFace"
sketch4.addGeometry(Part.LineSegment(App.Vector(-12.8, -47.2, 0), App.Vector(-68.8, -47.2, 0)), False)
sketch4.addGeometry(Part.ArcOfCircle(Part.Circle(App.Vector(-68.8, -45.2, 0), App.Vector(0, 0, 1), 2), math.radians(180), math.radians(270)), False)
sketch4.addGeometry(Part.LineSegment(App.Vector(-70.8, -45.2, 0), App.Vector(-70.8, -12.2, 0)), False)
sketch4.addGeometry(Part.ArcOfCircle(Part.Circle(App.Vector(-68.8, -12.2, 0), App.Vector(0, 0, 1), 2), math.radians(90), math.radians(180)), False)
sketch4.addGeometry(Part.LineSegment(App.Vector(-68.8, -10.2, 0), App.Vector(-66.8, -10.2, 0)), False)
sketch4.addGeometry(Part.ArcOfCircle(Part.Circle(App.Vector(-66.8, -8.2, 0), App.Vector(0, 0, 1), 2), math.radians(-90), math.radians(0)), False)
sketch4.addGeometry(Part.LineSegment(App.Vector(-64.8, -8.2, 0), App.Vector(-64.8, 5.8, 0)), False)
sketch4.addGeometry(Part.ArcOfCircle(Part.Circle(App.Vector(-62.8, 5.8, 0), App.Vector(0, 0, 1), 2), math.radians(90), math.radians(180)), False)
sketch4.addGeometry(Part.LineSegment(App.Vector(-62.8, 7.8, 0), App.Vector(-18.8, 7.8, 0)), False)
sketch4.addGeometry(Part.ArcOfCircle(Part.Circle(App.Vector(-18.8, 5.8, 0), App.Vector(0, 0, 1), 2), math.radians(0), math.radians(90)), False)
sketch4.addGeometry(Part.LineSegment(App.Vector(-16.8, 5.8, 0), App.Vector(-16.8, -8.2, 0)), False)
sketch4.addGeometry(Part.ArcOfCircle(Part.Circle(App.Vector(-14.8, -8.2, 0), App.Vector(0, 0, 1), 2), math.radians(180), math.radians(270)), False)
sketch4.addGeometry(Part.LineSegment(App.Vector(-14.8, -10.2, 0), App.Vector(-12.8, -10.2, 0)), False)
sketch4.addGeometry(Part.ArcOfCircle(Part.Circle(App.Vector(-12.8, -12.2, 0), App.Vector(0, 0, 1), 2), math.radians(0), math.radians(90)), False)
sketch4.addGeometry(Part.LineSegment(App.Vector(-10.8, -12.2, 0), App.Vector(-10.8, -45.2, 0)), False)
sketch4.addGeometry(Part.ArcOfCircle(Part.Circle(App.Vector(-12.8, -45.2, 0), App.Vector(0, 0, 1), 2), math.radians(-90), math.radians(0)), False)
sketch4.addConstraint(Sketcher.Constraint("Tangent", 0, 2, 1, 2))
sketch4.addConstraint(Sketcher.Constraint("Tangent", 1, 1, 2, 1))
sketch4.addConstraint(Sketcher.Constraint("Tangent", 2, 2, 3, 2))
sketch4.addConstraint(Sketcher.Constraint("Tangent", 3, 1, 4, 1))
sketch4.addConstraint(Sketcher.Constraint("Tangent", 4, 2, 5, 1))
sketch4.addConstraint(Sketcher.Constraint("Tangent", 5, 2, 6, 1))
sketch4.addConstraint(Sketcher.Constraint("Tangent", 6, 2, 7, 2))
sketch4.addConstraint(Sketcher.Constraint("Tangent", 7, 1, 8, 1))
sketch4.addConstraint(Sketcher.Constraint("Tangent", 8, 2, 9, 2))
sketch4.addConstraint(Sketcher.Constraint("Tangent", 9, 1, 10, 1))
sketch4.addConstraint(Sketcher.Constraint("Tangent", 10, 2, 11, 1))
sketch4.addConstraint(Sketcher.Constraint("Tangent", 11, 2, 12, 1))
sketch4.addConstraint(Sketcher.Constraint("Tangent", 12, 2, 13, 2))
sketch4.addConstraint(Sketcher.Constraint("Tangent", 13, 1, 14, 1))
sketch4.addConstraint(Sketcher.Constraint("Tangent", 14, 2, 15, 2))
sketch4.addConstraint(Sketcher.Constraint("Tangent", 15, 1, 0, 1))
sketch4.addConstraint(Sketcher.Constraint("Horizontal", 0))
sketch4.addConstraint(Sketcher.Constraint("Vertical", 2))
sketch4.addConstraint(Sketcher.Constraint("Horizontal", 4))
sketch4.addConstraint(Sketcher.Constraint("Vertical", 6))
sketch4.addConstraint(Sketcher.Constraint("Horizontal", 8))
sketch4.addConstraint(Sketcher.Constraint("Vertical", 10))
sketch4.addConstraint(Sketcher.Constraint("Horizontal", 12))
sketch4.addConstraint(Sketcher.Constraint("Vertical", 14))
sketch4.addConstraint(Sketcher.Constraint("Equal", 1, 3))
sketch4.addConstraint(Sketcher.Constraint("Equal", 3, 5))
sketch4.addConstraint(Sketcher.Constraint("Equal", 5, 7))
sketch4.addConstraint(Sketcher.Constraint("Equal", 7, 9))
sketch4.addConstraint(Sketcher.Constraint("Equal", 9, 11))
sketch4.addConstraint(Sketcher.Constraint("Equal", 11, 13))
sketch4.addConstraint(Sketcher.Constraint("Equal", 13, 15))
sketch4.addConstraint(Sketcher.Constraint("Horizontal", 5, 3, 11, 3))
sketch4.addConstraint(Sketcher.Constraint("Equal", 4, 12))
sketch4.addConstraint(Sketcher.Constraint("Radius", 1, 2.0))
sketch4.addConstraint(Sketcher.Constraint("DistanceX", 0, 2, 0, 1, 56.0))
sketch4.addConstraint(Sketcher.Constraint("DistanceX", 4, 1, 4, 2, 2.0))
sketch4.addConstraint(Sketcher.Constraint("DistanceY", 2, 1, 2, 2, 33.0))
sketch4.addConstraint(Sketcher.Constraint("DistanceY", 6, 1, 6, 2, 14.0))
sketch4.addConstraint(Sketcher.Constraint("DistanceX", 1, 3, -1, 1, 68.825789))
sketch4.addConstraint(Sketcher.Constraint("DistanceY", 1, 3, -1, 1, 45.240741))
pocket3 = body.newObject("PartDesign::Pocket", "Pocket002")
pocket3.Profile = sketch4
pocket3.Length = 10
pocket3.Reversed = True

# Sketch on XY plane
sketch5 = body.newObject("Sketcher::SketchObject", "Sketch004")
sketch5.AttachmentSupport = (doc.getObject("XY_Plane"), [""])
sketch5.MapMode = "FlatFace"
sketch5.AttachmentOffset = App.Placement(App.Vector(0, 0, 3), App.Rotation())
sketch5.addGeometry(Part.Circle(App.Vector(57, 21, 0), App.Vector(0, 0, 1), 5), False)
sketch5.addGeometry(Part.Circle(App.Vector(-135, 26, 0), App.Vector(0, 0, 1), 5), False)
sketch5.addConstraint(Sketcher.Constraint("Equal", 0, 1))
sketch5.addConstraint(Sketcher.Constraint("Diameter", 0, 10.0))
sketch5.addConstraint(Sketcher.Constraint("DistanceX", 1, 3, 0, 3, 192.0))
sketch5.addConstraint(Sketcher.Constraint("DistanceY", 0, 3, 1, 3, 5.0))
sketch5.addConstraint(Sketcher.Constraint("DistanceX", -1, 1, 0, 3, 57.174211))
sketch5.addConstraint(Sketcher.Constraint("DistanceY", -1, 1, 0, 3, 20.759259))
pocket4 = body.newObject("PartDesign::Pocket", "Pocket003")
pocket4.Profile = sketch5
pocket4.Length = 7
pocket4.Reversed = True

doc.recompute()
